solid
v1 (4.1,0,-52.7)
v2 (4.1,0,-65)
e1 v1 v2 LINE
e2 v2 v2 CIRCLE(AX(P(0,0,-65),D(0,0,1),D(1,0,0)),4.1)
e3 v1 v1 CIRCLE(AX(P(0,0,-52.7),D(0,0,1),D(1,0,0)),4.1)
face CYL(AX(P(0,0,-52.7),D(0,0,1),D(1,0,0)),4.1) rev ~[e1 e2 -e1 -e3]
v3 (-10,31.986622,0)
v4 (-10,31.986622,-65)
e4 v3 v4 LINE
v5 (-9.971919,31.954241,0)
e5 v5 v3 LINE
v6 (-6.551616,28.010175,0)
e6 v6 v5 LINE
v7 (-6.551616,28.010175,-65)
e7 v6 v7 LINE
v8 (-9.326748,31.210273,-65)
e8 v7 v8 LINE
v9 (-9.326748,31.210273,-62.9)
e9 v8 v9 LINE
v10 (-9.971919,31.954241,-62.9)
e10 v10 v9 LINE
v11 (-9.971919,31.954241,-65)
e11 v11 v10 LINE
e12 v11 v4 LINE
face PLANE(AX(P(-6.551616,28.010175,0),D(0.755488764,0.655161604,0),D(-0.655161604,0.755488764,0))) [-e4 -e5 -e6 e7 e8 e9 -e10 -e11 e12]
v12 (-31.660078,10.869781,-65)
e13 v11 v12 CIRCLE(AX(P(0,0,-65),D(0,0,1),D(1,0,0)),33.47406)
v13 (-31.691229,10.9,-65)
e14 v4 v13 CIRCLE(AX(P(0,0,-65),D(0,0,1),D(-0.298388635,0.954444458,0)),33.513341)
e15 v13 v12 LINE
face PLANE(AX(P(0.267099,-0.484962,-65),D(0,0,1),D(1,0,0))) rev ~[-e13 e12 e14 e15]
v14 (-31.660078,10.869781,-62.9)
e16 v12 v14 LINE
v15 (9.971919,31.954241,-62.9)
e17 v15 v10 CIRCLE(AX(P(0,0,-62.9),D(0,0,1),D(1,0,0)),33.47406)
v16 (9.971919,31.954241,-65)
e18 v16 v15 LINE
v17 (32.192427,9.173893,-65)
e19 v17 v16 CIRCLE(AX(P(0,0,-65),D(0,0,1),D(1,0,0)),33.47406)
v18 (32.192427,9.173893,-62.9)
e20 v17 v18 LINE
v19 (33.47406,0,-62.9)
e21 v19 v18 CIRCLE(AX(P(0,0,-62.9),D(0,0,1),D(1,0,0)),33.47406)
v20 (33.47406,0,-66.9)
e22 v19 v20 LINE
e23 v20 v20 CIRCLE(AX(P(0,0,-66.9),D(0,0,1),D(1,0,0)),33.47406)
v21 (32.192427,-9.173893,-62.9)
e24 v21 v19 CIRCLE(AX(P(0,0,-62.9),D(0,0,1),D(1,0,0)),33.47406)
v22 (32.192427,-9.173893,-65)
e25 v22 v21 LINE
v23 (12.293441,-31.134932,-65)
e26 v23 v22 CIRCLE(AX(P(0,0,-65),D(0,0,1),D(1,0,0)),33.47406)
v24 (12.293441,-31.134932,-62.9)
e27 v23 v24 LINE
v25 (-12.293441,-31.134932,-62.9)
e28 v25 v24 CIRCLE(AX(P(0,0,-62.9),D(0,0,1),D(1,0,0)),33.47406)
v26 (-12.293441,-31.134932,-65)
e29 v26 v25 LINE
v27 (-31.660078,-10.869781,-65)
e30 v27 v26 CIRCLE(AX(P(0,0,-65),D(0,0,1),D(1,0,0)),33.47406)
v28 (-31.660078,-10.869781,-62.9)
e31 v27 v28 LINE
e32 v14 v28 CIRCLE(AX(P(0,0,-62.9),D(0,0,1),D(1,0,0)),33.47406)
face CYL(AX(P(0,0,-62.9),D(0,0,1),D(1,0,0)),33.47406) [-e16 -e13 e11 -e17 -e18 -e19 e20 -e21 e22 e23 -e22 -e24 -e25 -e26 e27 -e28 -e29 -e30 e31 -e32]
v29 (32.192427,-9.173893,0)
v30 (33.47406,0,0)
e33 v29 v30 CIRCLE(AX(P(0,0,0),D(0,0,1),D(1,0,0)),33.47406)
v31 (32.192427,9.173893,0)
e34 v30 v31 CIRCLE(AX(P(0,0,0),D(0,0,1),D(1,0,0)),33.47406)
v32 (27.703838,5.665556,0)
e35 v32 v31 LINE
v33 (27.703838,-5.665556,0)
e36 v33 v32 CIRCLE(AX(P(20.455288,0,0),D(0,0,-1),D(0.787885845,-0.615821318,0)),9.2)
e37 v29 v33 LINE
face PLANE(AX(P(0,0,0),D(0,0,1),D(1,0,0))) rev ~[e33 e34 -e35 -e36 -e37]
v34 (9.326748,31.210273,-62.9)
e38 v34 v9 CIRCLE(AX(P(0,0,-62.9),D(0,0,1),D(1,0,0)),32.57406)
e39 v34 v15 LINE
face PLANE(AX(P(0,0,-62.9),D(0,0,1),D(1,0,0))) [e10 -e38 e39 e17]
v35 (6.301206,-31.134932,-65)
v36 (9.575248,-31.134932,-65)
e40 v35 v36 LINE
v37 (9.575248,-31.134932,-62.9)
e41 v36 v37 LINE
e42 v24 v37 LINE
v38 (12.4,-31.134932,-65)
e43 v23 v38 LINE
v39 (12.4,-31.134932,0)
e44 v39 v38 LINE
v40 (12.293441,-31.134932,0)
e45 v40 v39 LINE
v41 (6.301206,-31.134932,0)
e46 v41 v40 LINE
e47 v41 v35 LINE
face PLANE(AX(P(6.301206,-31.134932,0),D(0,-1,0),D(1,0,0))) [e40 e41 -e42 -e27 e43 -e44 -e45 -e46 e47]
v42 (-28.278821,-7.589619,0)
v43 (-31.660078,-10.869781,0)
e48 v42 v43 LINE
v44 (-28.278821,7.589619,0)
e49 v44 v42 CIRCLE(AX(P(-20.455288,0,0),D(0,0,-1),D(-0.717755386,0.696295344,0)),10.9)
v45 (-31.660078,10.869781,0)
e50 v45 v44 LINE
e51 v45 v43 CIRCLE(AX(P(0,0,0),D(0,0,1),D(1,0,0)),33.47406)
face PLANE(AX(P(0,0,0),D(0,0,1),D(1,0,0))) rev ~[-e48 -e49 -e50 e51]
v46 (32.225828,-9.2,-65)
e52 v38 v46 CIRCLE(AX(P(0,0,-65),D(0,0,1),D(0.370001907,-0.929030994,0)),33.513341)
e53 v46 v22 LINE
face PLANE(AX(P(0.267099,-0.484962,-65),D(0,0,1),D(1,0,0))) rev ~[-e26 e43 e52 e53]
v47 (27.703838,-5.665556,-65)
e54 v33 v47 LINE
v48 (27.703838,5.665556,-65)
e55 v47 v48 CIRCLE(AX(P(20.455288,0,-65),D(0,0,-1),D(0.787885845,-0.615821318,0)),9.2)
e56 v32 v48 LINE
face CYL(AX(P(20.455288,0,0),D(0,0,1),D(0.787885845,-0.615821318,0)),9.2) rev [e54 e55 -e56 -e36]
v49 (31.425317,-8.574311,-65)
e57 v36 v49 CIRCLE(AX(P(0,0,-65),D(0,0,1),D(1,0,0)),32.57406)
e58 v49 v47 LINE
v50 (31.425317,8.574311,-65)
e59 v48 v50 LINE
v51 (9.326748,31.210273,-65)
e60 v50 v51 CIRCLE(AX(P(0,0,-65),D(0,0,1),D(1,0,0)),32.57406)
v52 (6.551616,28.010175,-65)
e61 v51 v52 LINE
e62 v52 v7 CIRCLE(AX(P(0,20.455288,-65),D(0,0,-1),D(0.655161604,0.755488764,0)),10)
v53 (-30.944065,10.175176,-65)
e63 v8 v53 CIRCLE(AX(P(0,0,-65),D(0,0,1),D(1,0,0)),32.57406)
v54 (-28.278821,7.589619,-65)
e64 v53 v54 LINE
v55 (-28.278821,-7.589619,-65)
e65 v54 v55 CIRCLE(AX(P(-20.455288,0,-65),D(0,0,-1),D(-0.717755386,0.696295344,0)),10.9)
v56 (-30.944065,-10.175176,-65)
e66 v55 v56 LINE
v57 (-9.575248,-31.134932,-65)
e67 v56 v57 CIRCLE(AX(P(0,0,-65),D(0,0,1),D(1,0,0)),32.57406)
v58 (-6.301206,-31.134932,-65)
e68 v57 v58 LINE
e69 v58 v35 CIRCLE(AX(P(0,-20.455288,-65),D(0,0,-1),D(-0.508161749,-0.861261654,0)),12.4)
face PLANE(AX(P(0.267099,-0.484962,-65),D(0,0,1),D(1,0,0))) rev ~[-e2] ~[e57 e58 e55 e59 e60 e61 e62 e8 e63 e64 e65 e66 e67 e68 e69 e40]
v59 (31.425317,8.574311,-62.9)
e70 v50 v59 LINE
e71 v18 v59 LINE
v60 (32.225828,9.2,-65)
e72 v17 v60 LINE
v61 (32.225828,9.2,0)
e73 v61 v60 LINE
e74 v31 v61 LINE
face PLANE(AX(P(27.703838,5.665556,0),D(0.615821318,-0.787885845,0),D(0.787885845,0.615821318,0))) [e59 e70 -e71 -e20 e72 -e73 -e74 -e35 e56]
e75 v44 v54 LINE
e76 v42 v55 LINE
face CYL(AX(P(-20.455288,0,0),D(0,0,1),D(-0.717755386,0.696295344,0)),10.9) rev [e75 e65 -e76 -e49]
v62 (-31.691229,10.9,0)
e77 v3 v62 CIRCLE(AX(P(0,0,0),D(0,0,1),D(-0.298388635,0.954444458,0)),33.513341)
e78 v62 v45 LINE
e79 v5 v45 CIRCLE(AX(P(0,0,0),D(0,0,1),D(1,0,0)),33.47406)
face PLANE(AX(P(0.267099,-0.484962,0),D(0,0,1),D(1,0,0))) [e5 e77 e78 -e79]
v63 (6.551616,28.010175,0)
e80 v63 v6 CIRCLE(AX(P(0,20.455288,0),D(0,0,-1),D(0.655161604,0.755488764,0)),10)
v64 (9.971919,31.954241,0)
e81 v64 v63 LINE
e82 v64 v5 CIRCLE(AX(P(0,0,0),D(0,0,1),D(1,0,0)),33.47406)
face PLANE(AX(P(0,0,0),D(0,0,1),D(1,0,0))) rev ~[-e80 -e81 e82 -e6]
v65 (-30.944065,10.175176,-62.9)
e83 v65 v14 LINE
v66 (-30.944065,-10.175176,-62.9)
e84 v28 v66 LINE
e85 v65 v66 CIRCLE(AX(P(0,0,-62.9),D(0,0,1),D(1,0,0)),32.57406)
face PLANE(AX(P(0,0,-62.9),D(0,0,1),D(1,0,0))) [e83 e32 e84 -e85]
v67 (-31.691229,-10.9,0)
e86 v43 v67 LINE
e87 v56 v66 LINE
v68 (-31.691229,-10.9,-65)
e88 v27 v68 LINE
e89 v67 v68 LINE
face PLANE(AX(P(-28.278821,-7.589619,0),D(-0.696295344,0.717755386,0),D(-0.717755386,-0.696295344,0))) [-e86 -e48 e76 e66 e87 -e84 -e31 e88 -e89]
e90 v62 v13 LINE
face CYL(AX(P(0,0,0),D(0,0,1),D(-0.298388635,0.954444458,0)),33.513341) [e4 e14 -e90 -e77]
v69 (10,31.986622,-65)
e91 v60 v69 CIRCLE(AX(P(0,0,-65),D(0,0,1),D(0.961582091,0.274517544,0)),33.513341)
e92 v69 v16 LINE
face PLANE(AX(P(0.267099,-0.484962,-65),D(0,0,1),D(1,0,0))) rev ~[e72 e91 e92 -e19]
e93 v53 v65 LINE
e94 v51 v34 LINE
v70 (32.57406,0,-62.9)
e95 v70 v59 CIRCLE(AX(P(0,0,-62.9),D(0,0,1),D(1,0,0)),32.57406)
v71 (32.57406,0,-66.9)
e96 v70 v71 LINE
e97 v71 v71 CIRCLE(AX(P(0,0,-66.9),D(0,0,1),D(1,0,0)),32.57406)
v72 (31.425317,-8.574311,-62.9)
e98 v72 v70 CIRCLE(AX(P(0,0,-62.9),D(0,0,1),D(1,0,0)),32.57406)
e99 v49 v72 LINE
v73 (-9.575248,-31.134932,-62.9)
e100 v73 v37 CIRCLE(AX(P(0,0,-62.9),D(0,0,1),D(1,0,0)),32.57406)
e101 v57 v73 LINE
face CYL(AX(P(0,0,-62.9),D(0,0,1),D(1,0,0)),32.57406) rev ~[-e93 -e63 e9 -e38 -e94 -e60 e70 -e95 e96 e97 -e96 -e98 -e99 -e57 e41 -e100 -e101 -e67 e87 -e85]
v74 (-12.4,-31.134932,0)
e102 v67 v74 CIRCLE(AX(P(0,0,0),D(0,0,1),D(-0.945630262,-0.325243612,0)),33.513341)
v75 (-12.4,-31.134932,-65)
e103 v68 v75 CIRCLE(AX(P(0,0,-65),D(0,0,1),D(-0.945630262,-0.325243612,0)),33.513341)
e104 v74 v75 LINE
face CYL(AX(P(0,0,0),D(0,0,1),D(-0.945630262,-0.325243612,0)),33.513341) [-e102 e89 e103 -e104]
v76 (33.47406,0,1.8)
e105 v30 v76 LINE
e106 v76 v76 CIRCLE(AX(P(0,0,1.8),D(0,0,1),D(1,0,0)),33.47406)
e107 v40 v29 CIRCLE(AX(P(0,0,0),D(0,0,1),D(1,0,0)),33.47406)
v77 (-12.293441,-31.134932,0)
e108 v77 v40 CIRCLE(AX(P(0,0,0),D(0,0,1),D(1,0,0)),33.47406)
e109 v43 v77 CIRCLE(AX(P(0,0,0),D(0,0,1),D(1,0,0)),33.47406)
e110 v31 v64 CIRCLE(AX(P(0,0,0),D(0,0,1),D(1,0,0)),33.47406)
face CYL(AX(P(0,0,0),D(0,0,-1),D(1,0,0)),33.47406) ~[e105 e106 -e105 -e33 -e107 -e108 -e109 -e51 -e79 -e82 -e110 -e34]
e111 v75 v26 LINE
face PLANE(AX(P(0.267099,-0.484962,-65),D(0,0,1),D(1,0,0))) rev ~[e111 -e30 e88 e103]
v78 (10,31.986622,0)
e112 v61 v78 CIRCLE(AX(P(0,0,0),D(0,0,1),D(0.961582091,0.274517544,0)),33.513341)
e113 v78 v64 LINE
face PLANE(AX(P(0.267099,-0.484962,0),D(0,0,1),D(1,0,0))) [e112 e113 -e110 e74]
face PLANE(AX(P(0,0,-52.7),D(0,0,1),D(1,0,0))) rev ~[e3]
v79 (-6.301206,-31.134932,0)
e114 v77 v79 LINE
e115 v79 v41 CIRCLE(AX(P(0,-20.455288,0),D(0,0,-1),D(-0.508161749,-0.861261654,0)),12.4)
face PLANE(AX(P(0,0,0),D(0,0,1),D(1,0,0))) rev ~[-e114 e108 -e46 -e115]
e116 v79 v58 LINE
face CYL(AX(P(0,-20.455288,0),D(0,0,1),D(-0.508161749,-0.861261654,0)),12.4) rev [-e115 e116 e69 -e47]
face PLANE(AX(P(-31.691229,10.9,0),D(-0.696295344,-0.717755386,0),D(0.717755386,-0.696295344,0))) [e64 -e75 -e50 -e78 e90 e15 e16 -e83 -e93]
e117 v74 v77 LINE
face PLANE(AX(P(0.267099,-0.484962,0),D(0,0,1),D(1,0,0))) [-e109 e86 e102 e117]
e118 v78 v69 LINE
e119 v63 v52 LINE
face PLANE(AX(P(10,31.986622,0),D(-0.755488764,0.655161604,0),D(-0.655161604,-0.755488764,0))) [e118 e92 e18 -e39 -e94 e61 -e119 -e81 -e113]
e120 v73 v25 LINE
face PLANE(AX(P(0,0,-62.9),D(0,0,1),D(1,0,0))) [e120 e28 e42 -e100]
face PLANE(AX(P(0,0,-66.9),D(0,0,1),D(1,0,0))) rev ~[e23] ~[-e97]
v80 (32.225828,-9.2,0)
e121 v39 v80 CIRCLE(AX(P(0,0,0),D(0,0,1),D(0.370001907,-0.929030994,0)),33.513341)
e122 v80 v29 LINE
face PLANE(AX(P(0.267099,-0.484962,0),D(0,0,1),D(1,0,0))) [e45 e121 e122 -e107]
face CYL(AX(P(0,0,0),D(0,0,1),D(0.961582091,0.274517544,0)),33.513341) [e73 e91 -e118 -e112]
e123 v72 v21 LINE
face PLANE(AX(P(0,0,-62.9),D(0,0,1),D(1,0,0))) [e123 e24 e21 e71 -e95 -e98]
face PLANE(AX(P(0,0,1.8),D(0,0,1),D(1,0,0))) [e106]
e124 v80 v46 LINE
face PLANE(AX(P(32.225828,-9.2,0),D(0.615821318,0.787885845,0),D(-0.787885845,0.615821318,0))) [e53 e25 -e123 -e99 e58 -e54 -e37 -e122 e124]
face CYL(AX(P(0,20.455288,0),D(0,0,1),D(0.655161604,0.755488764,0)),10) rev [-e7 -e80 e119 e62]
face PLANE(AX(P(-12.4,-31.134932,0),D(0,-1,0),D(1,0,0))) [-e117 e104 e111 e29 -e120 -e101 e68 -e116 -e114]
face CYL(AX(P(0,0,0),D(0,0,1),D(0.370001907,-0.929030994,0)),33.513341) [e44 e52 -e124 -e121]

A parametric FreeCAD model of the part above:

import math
import FreeCAD as App
import Part
import Sketcher
from FreeCAD import Vector
Q = App.Units.Quantity

doc = App.newDocument("Part")
params = doc.addObject("Spreadsheet::Sheet", "Params")
for row, (alias, value) in enumerate([
    ("sketch1_radius", "10 mm"),
    ("sketch1_radius2", "12.4 mm"),
    ("sketch1_radius3", "9.2 mm"),
    ("sketch1_radius4", "10.9 mm"),
    ("pad1_length", "65 mm"),
    ("pad2_length", "1.8 mm"),
    ("pad3_length", "4 mm"),
    ("sketch4_diameter", "8.2 mm"),
    ("pocket1_length", "12.3 mm"),
], start=1):
    params.set(f"A{row}", alias)
    params.set(f"B{row}", "=" + value)
    params.setAlias(f"B{row}", alias)

body = doc.addObject("PartDesign::Body", "Body")

sketch1 = body.newObject("Sketcher::SketchObject", "Sketch")
sketch1.AttachmentSupport = (doc.getObject("XY_Plane"), [""])
sketch1.MapMode = "FlatFace"
sketch1.addGeometry([
    Part.ArcOfCircle(Part.Circle(Vector(0, -20.5, 0), Vector(0, 0, 1), 12.4), math.radians(-59), math.radians(239)),
    Part.LineSegment(Vector(6.3, -31.1, 0), Vector(12.4, -31.1, 0)),
    Part.ArcOfCircle(Part.Circle(Vector(0, 0, 0), Vector(0, 0, 1), 33.5), math.radians(-68), math.radians(-16)),
    Part.LineSegment(Vector(32.2, -9.2, 0), Vector(27.7, -5.7, 0)),
    Part.ArcOfCircle(Part.Circle(Vector(20.5, 0, 0), Vector(0, 0, 1), 9.2), math.radians(38), math.radians(322)),
    Part.LineSegment(Vector(27.7, 5.7, 0), Vector(32.2, 9.2, 0)),
    Part.ArcOfCircle(Part.Circle(Vector(0, 0, 0), Vector(0, 0, 1), 33.5), math.radians(16), math.radians(73)),
    Part.LineSegment(Vector(10, 32, 0), Vector(6.6, 28, 0)),
    Part.ArcOfCircle(Part.Circle(Vector(0, 20.5, 0), Vector(0, 0, 1), 10), math.radians(131), math.radians(409)),
    Part.LineSegment(Vector(-6.6, 28, 0), Vector(-10, 32, 0)),
    Part.ArcOfCircle(Part.Circle(Vector(0, 0, 0), Vector(0, 0, 1), 33.5), math.radians(107), math.radians(161)),
    Part.LineSegment(Vector(-31.7, 10.9, 0), Vector(-28.3, 7.6, 0)),
    Part.ArcOfCircle(Part.Circle(Vector(-20.5, 0, 0), Vector(0, 0, 1), 10.9), math.radians(-136), math.radians(136)),
    Part.LineSegment(Vector(-28.3, -7.6, 0), Vector(-31.7, -10.9, 0)),
    Part.ArcOfCircle(Part.Circle(Vector(0, 0, 0), Vector(0, 0, 1), 33.5), math.radians(-161), math.radians(-112)),
    Part.LineSegment(Vector(-12.4, -31.1, 0), Vector(-6.3, -31.1, 0)),
], False)
sketch1.addConstraint([
    Sketcher.Constraint("Coincident", 0, 1, 1, 1),
    Sketcher.Constraint("Coincident", 1, 2, 2, 1),
    Sketcher.Constraint("Coincident", 2, 2, 3, 1),
    Sketcher.Constraint("Coincident", 3, 2, 4, 2),
    Sketcher.Constraint("Coincident", 4, 1, 5, 1),
    Sketcher.Constraint("Coincident", 5, 2, 6, 1),
    Sketcher.Constraint("Coincident", 6, 2, 7, 1),
    Sketcher.Constraint("Coincident", 7, 2, 8, 2),
    Sketcher.Constraint("Coincident", 8, 1, 9, 1),
    Sketcher.Constraint("Coincident", 9, 2, 10, 1),
    Sketcher.Constraint("Coincident", 10, 2, 11, 1),
    Sketcher.Constraint("Coincident", 11, 2, 12, 2),
    Sketcher.Constraint("Coincident", 12, 1, 13, 1),
    Sketcher.Constraint("Coincident", 13, 2, 14, 1),
    Sketcher.Constraint("Coincident", 14, 2, 15, 1),
    Sketcher.Constraint("Coincident", 15, 2, 0, 2),
    Sketcher.Constraint("Horizontal", 1),
    Sketcher.Constraint("Horizontal", 15),
    Sketcher.Constraint("Coincident", 2, 3, -1, 1),
    Sketcher.Constraint("Coincident", 6, 3, -1, 1),
    Sketcher.Constraint("Coincident", 10, 3, -1, 1),
    Sketcher.Constraint("Coincident", 14, 3, -1, 1),
    Sketcher.Constraint("Equal", 2, 6),
    Sketcher.Constraint("Equal", 6, 10),
    Sketcher.Constraint("Equal", 10, 14),
    Sketcher.Constraint("Symmetric", 0, 3, 8, 3, -1, 1),
    Sketcher.Constraint("Symmetric", 4, 3, 12, 3, -1, 1),
    Sketcher.Constraint("Symmetric", 7, 2, 8, 1, -2),
    Sketcher.Constraint("Symmetric", 3, 2, 4, 1, -1),
    Sketcher.Constraint("Horizontal", 6, 2, 9, 2),
    Sketcher.Constraint("Horizontal", 1, 2, 14, 2),
    Sketcher.Constraint("Vertical", 2, 2, 5, 2),
    Sketcher.Constraint("Vertical", 11, 2, 12, 1),
    Sketcher.Constraint("Vertical", 10, 2, 13, 2),
    Sketcher.Constraint("Radius", 8, Q("10 mm")),
    Sketcher.Constraint("Radius", 0, Q("12.4 mm")),
    Sketcher.Constraint("Radius", 4, Q("9.2 mm")),
    Sketcher.Constraint("Radius", 12, Q("10.9 mm")),
    Sketcher.Constraint("DistanceX", -1, 1, 6, 2, Q("10 mm")),
    Sketcher.Constraint("DistanceX", -1, 1, 1, 2, Q("12.4 mm")),
    Sketcher.Constraint("DistanceY", 2, 2, -1, 1, Q("9.2 mm")),
    Sketcher.Constraint("DistanceY", -1, 1, 10, 2, Q("10.9 mm")),
    Sketcher.Constraint("Radius", 2, Q("33.513341 mm")),
    Sketcher.Constraint("Distance", 3, Q("5.739398 mm")),
    Sketcher.Constraint("Distance", 7, Q("5.26341 mm")),
    Sketcher.Constraint("DistanceX", 11, 2, -1, 1, Q("28.278821 mm")),
    Sketcher.Constraint("DistanceX", 3, 2, 2, 2, Q("4.521991 mm")),
    Sketcher.Constraint("DistanceX", -1, 1, 7, 2, Q("6.551616 mm")),
])
sketch1.setExpression("Constraints[34]", "Params.sketch1_radius")
sketch1.setExpression("Constraints[35]", "Params.sketch1_radius2")
sketch1.setExpression("Constraints[36]", "Params.sketch1_radius3")
sketch1.setExpression("Constraints[37]", "Params.sketch1_radius4")
pad1 = body.newObject("PartDesign::Pad", "Pad")
pad1.Profile = sketch1
pad1.setExpression("Length", "Params.pad1_length")
pad1.Reversed = True

sketch2 = body.newObject("Sketcher::SketchObject", "Sketch001")
sketch2.AttachmentSupport = (doc.getObject("XY_Plane"), [""])
sketch2.MapMode = "FlatFace"
sketch2.addGeometry(Part.Circle(Vector(0, 0, 0), Vector(0, 0, 1), 33), False)
sketch2.addConstraint([
    Sketcher.Constraint("Coincident", 0, 3, -1, 1),
    Sketcher.Constraint("Diameter", 0, Q("66.94812 mm")),
])
pad2 = body.newObject("PartDesign::Pad", "Pad001")
pad2.Profile = sketch2
pad2.setExpression("Length", "Params.pad2_length")

sketch3 = body.newObject("Sketcher::SketchObject", "Sketch002")
sketch3.AttachmentSupport = (doc.getObject("XY_Plane"), [""])
sketch3.MapMode = "FlatFace"
sketch3.AttachmentOffset = App.Placement(Vector(0, 0, -62.9), App.Rotation())
sketch3.addGeometry([
    Part.Circle(Vector(0, 0, 0), Vector(0, 0, 1), 33),
    Part.Circle(Vector(0, 0, 0), Vector(0, 0, 1), 33),
], False)
sketch3.addConstraint([
    Sketcher.Constraint("Coincident", 0, 3, -1, 1),
    Sketcher.Constraint("Coincident", 1, 3, -1, 1),
    Sketcher.Constraint("Diameter", 0, Q("66.94812 mm")),
    Sketcher.Constraint("Diameter", 1, Q("65.14812 mm")),
])
pad3 = body.newObject("PartDesign::Pad", "Pad002")
pad3.Profile = sketch3
pad3.setExpression("Length", "Params.pad3_length")
pad3.Reversed = True

sketch4 = body.newObject("Sketcher::SketchObject", "Sketch003")
sketch4.AttachmentSupport = (doc.getObject("XY_Plane"), [""])
sketch4.MapMode = "FlatFace"
sketch4.AttachmentOffset = App.Placement(Vector(0, 0, -52.7), App.Rotation())
sketch4.addGeometry(Part.Circle(Vector(0, 0, 0), Vector(0, 0, 1), 4.1), False)
sketch4.addConstraint([
    Sketcher.Constraint("Coincident", 0, 3, -1, 1),
    Sketcher.Constraint("Diameter", 0, Q("8.2 mm")),
])
sketch4.setExpression("Constraints[1]", "Params.sketch4_diameter")
pocket1 = body.newObject("PartDesign::Pocket", "Pocket")
pocket1.Profile = sketch4
pocket1.setExpression("Length", "Params.pocket1_length")

doc.recompute()
